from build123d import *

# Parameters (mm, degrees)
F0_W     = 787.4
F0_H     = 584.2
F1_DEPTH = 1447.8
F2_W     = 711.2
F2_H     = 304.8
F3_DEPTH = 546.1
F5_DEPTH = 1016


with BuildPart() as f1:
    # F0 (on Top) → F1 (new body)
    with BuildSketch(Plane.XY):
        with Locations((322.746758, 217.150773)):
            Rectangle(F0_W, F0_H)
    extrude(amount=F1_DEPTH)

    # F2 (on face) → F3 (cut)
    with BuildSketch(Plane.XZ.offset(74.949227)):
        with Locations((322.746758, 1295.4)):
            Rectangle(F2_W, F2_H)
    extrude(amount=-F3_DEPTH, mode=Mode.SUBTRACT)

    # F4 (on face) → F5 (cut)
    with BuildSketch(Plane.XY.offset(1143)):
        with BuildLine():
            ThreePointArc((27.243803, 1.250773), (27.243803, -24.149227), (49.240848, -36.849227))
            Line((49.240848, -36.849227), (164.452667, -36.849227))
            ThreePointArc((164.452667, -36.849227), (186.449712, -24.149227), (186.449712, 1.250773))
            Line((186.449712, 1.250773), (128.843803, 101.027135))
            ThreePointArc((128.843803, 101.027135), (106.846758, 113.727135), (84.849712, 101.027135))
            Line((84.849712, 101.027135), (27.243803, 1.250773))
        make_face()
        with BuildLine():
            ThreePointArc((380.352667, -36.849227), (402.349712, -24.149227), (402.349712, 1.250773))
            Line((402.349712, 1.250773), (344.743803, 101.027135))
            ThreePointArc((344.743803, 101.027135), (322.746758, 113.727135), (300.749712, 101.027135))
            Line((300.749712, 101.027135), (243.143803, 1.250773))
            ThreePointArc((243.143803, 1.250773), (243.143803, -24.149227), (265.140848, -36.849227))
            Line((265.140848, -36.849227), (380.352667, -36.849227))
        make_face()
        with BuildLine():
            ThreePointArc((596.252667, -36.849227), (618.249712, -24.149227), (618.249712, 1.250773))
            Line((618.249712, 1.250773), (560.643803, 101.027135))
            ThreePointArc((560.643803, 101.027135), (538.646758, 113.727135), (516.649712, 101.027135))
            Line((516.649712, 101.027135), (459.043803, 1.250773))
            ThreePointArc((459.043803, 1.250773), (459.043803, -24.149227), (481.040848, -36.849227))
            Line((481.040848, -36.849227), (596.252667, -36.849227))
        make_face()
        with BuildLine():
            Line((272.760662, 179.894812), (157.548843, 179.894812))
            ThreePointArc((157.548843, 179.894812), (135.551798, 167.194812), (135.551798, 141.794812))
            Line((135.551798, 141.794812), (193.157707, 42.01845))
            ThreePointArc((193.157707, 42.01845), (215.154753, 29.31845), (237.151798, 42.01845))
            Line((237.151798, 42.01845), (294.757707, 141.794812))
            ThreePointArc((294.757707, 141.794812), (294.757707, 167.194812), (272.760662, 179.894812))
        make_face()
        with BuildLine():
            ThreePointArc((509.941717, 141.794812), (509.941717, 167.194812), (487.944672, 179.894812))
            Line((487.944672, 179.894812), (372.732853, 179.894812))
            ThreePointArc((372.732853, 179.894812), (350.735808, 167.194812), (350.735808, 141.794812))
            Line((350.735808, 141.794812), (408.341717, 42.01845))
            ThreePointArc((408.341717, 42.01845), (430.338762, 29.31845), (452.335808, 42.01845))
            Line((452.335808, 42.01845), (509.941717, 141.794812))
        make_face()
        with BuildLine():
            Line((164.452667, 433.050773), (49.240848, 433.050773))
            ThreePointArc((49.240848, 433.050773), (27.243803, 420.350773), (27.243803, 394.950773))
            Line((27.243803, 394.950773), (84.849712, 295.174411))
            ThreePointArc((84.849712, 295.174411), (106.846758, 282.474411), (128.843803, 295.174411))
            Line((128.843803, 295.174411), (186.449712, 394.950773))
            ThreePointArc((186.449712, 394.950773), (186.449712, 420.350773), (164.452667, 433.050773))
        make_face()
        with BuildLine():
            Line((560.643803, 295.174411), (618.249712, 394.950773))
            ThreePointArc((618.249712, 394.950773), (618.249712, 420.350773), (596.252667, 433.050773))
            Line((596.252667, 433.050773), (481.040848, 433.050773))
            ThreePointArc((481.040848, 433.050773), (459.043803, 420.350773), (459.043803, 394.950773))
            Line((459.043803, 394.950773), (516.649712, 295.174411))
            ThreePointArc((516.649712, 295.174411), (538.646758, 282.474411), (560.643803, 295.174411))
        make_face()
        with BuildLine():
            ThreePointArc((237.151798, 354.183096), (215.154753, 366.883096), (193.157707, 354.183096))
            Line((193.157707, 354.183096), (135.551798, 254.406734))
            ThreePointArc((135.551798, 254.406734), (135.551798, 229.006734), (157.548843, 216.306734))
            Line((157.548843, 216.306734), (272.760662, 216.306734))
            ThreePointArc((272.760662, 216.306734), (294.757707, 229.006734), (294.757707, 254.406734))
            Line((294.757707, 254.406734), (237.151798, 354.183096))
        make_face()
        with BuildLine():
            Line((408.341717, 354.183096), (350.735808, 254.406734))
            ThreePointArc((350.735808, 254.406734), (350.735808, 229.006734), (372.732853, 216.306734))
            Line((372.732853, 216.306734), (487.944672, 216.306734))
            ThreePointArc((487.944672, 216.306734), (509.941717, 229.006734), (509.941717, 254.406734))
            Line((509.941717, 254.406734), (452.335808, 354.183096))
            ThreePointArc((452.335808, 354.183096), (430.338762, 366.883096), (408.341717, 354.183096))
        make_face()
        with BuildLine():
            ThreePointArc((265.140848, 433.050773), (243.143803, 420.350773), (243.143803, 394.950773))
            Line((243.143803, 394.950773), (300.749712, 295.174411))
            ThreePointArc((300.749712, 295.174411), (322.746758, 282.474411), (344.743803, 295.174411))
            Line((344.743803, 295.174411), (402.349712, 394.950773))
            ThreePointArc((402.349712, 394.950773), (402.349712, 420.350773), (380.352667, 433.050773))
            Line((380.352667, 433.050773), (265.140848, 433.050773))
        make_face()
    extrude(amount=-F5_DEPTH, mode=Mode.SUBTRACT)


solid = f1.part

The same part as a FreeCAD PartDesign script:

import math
import FreeCAD as App
import Part
import Sketcher
Q = App.Units.Quantity


def add_polygon(sketch, points):
    """Adds a closed chain of lines whose ends are joined by coincident constraints."""
    first, n = sketch.GeometryCount, len(points)
    for a, b in zip(points, points[1:] + points[:1]):
        sketch.addGeometry(Part.LineSegment(App.Vector(*a, 0), App.Vector(*b, 0)), False)
    for i in range(n):
        sketch.addConstraint(Sketcher.Constraint("Coincident", first + i, 2, first + (i + 1) % n, 1))

doc = App.newDocument("Part")
params = doc.addObject("Spreadsheet::Sheet", "Params")
for row, (alias, value) in enumerate([
    ("sketch1_width", "31 in"),
    ("sketch1_height", "23 in"),
    ("pad1_length", "57 in"),
    ("sketch2_width", "28 in"),
    ("sketch2_height", "12 in"),
    ("pocket1_length", "21.5 in"),
    ("sketch3_radius", "1 in"),
    ("pocket2_length", "40 in"),
], start=1):
    params.set(f"A{row}", alias)
    params.set(f"B{row}", "=" + value)
    params.setAlias(f"B{row}", alias)

body = doc.addObject("PartDesign::Body", "Body")

# Sketch on XY plane
sketch1 = body.newObject("Sketcher::SketchObject", "Sketch")
sketch1.AttachmentSupport = (doc.getObject("XY_Plane"), [""])
sketch1.MapMode = "FlatFace"
add_polygon(sketch1, [(-71, 509), (-71, -75), (716, -75), (716, 509)])  # lines 0-3
sketch1.addConstraint([
    Sketcher.Constraint("Vertical", 0),
    Sketcher.Constraint("Horizontal", 1),
    Sketcher.Constraint("Vertical", 2),
    Sketcher.Constraint("Horizontal", 3),
    Sketcher.Constraint("DistanceX", 1, 1, 1, 2, Q("31 in")),
    Sketcher.Constraint("DistanceY", 0, 2, 0, 1, Q("23 in")),
    Sketcher.Constraint("DistanceX", -1, 1, 1, 2, 716.446758),
    Sketcher.Constraint("DistanceY", 0, 2, -1, 1, 74.949227),
])
sketch1.setExpression("Constraints[8]", "Params.sketch1_width")
sketch1.setExpression("Constraints[9]", "Params.sketch1_height")
pad1 = body.newObject("PartDesign::Pad", "Pad")
pad1.Profile = sketch1
pad1.setExpression("Length", "Params.pad1_length")

# Sketch on XZ plane
sketch2 = body.newObject("Sketcher::SketchObject", "Sketch001")
sketch2.AttachmentSupport = (doc.getObject("XZ_Plane"), [""])
sketch2.MapMode = "FlatFace"
sketch2.AttachmentOffset = App.Placement(App.Vector(0, 0, 74.949227), App.Rotation())
add_polygon(sketch2, [(-33, 1448), (-33, 1143), (678, 1143), (678, 1448)])  # lines 0-3
sketch2.addConstraint([
    Sketcher.Constraint("Vertical", 0),
    Sketcher.Constraint("Horizontal", 1),
    Sketcher.Constraint("Vertical", 2),
    Sketcher.Constraint("Horizontal", 3),
    Sketcher.Constraint("DistanceX", 1, 1, 1, 2, Q("28 in")),
    Sketcher.Constraint("DistanceY", 0, 2, 0, 1, Q("12 in")),
    Sketcher.Constraint("DistanceY", -1, 1, 0, 2, Q("45 in")),
    Sketcher.Constraint("DistanceX", -1, 1, 1, 2, 678.346758),
])
sketch2.setExpression("Constraints[8]", "Params.sketch2_width")
sketch2.setExpression("Constraints[9]", "Params.sketch2_height")
pocket1 = body.newObject("PartDesign::Pocket", "Pocket")
pocket1.Profile = sketch2
pocket1.setExpression("Length", "Params.pocket1_length")

# Sketch on XY plane
sketch3 = body.newObject("Sketcher::SketchObject", "Sketch002")
sketch3.AttachmentSupport = (doc.getObject("XY_Plane"), [""])
sketch3.MapMode = "FlatFace"
sketch3.AttachmentOffset = App.Placement(App.Vector(0, 0, 45 * 25.4), App.Rotation())
sketch3.addGeometry([
    Part.ArcOfCircle(Part.Circle(App.Vector(49, -11, 0), App.Vector(0, 0, 1), 25), math.radians(150), math.radians(270)),  # 0
    Part.LineSegment(App.Vector(49, -37, 0), App.Vector(164, -37, 0)),  # 1
    Part.ArcOfCircle(Part.Circle(App.Vector(164, -11, 0), App.Vector(0, 0, 1), 25), math.radians(-90), math.radians(30)),  # 2
    Part.LineSegment(App.Vector(186, 1, 0), App.Vector(129, 101, 0)),  # 3
    Part.ArcOfCircle(Part.Circle(App.Vector(107, 88, 0), App.Vector(0, 0, 1), 25), math.radians(30), math.radians(150)),  # 4
    Part.LineSegment(App.Vector(85, 101, 0), App.Vector(27, 1, 0)),  # 5
    Part.ArcOfCircle(Part.Circle(App.Vector(380, -11, 0), App.Vector(0, 0, 1), 25), math.radians(-90), math.radians(30)),  # 6
    Part.LineSegment(App.Vector(402, 1, 0), App.Vector(345, 101, 0)),  # 7
    Part.ArcOfCircle(Part.Circle(App.Vector(323, 88, 0), App.Vector(0, 0, 1), 25), math.radians(30), math.radians(150)),  # 8
    Part.LineSegment(App.Vector(301, 101, 0), App.Vector(243, 1, 0)),  # 9
    Part.ArcOfCircle(Part.Circle(App.Vector(265, -11, 0), App.Vector(0, 0, 1), 25), math.radians(150), math.radians(270)),  # 10
    Part.LineSegment(App.Vector(265, -37, 0), App.Vector(380, -37, 0)),  # 11
    Part.ArcOfCircle(Part.Circle(App.Vector(596, -11, 0), App.Vector(0, 0, 1), 25), math.radians(-90), math.radians(30)),  # 12
    Part.LineSegment(App.Vector(618, 1, 0), App.Vector(561, 101, 0)),  # 13
    Part.ArcOfCircle(Part.Circle(App.Vector(539, 88, 0), App.Vector(0, 0, 1), 25), math.radians(30), math.radians(150)),  # 14
    Part.LineSegment(App.Vector(517, 101, 0), App.Vector(459, 1, 0)),  # 15
    Part.ArcOfCircle(Part.Circle(App.Vector(481, -11, 0), App.Vector(0, 0, 1), 25), math.radians(150), math.radians(270)),  # 16
    Part.LineSegment(App.Vector(481, -37, 0), App.Vector(596, -37, 0)),  # 17
    Part.LineSegment(App.Vector(273, 180, 0), App.Vector(158, 180, 0)),  # 18
    Part.ArcOfCircle(Part.Circle(App.Vector(158, 154, 0), App.Vector(0, 0, 1), 25), math.radians(90), math.radians(210)),  # 19
    Part.LineSegment(App.Vector(136, 142, 0), App.Vector(193, 42, 0)),  # 20
    Part.ArcOfCircle(Part.Circle(App.Vector(215, 55, 0), App.Vector(0, 0, 1), 25), math.radians(-150), math.radians(-30)),  # 21
    Part.LineSegment(App.Vector(237, 42, 0), App.Vector(295, 142, 0)),  # 22
    Part.ArcOfCircle(Part.Circle(App.Vector(273, 154, 0), App.Vector(0, 0, 1), 25), math.radians(-30), math.radians(90)),  # 23
    Part.ArcOfCircle(Part.Circle(App.Vector(488, 154, 0), App.Vector(0, 0, 1), 25), math.radians(-30), math.radians(90)),  # 24
    Part.LineSegment(App.Vector(488, 180, 0), App.Vector(373, 180, 0)),  # 25
    Part.ArcOfCircle(Part.Circle(App.Vector(373, 154, 0), App.Vector(0, 0, 1), 25), math.radians(90), math.radians(210)),  # 26
    Part.LineSegment(App.Vector(351, 142, 0), App.Vector(408, 42, 0)),  # 27
    Part.ArcOfCircle(Part.Circle(App.Vector(430, 55, 0), App.Vector(0, 0, 1), 25), math.radians(-150), math.radians(-30)),  # 28
    Part.LineSegment(App.Vector(452, 42, 0), App.Vector(510, 142, 0)),  # 29
    Part.LineSegment(App.Vector(164, 433, 0), App.Vector(49, 433, 0)),  # 30
    Part.ArcOfCircle(Part.Circle(App.Vector(49, 408, 0), App.Vector(0, 0, 1), 25), math.radians(90), math.radians(210)),  # 31
    Part.LineSegment(App.Vector(27, 395, 0), App.Vector(85, 295, 0)),  # 32
    Part.ArcOfCircle(Part.Circle(App.Vector(107, 308, 0), App.Vector(0, 0, 1), 25), math.radians(-150), math.radians(-30)),  # 33
    Part.LineSegment(App.Vector(129, 295, 0), App.Vector(186, 395, 0)),  # 34
    Part.ArcOfCircle(Part.Circle(App.Vector(164, 408, 0), App.Vector(0, 0, 1), 25), math.radians(-30), math.radians(90)),  # 35
    Part.LineSegment(App.Vector(561, 295, 0), App.Vector(618, 395, 0)),  # 36
    Part.ArcOfCircle(Part.Circle(App.Vector(596, 408, 0), App.Vector(0, 0, 1), 25), math.radians(-30), math.radians(90)),  # 37
    Part.LineSegment(App.Vector(596, 433, 0), App.Vector(481, 433, 0)),  # 38
    Part.ArcOfCircle(Part.Circle(App.Vector(481, 408, 0), App.Vector(0, 0, 1), 25), math.radians(90), math.radians(210)),  # 39
    Part.LineSegment(App.Vector(459, 395, 0), App.Vector(517, 295, 0)),  # 40
    Part.ArcOfCircle(Part.Circle(App.Vector(539, 308, 0), App.Vector(0, 0, 1), 25), math.radians(-150), math.radians(-30)),  # 41
    Part.ArcOfCircle(Part.Circle(App.Vector(215, 341, 0), App.Vector(0, 0, 1), 25), math.radians(30), math.radians(150)),  # 42
    Part.LineSegment(App.Vector(193, 354, 0), App.Vector(136, 254, 0)),  # 43
    Part.ArcOfCircle(Part.Circle(App.Vector(158, 242, 0), App.Vector(0, 0, 1), 25), math.radians(150), math.radians(270)),  # 44
    Part.LineSegment(App.Vector(158, 216, 0), App.Vector(273, 216, 0)),  # 45
    Part.ArcOfCircle(Part.Circle(App.Vector(273, 242, 0), App.Vector(0, 0, 1), 25), math.radians(-90), math.radians(30)),  # 46
    Part.LineSegment(App.Vector(295, 254, 0), App.Vector(237, 354, 0)),  # 47
    Part.LineSegment(App.Vector(408, 354, 0), App.Vector(351, 254, 0)),  # 48
    Part.ArcOfCircle(Part.Circle(App.Vector(373, 242, 0), App.Vector(0, 0, 1), 25), math.radians(150), math.radians(270)),  # 49
    Part.LineSegment(App.Vector(373, 216, 0), App.Vector(488, 216, 0)),  # 50
    Part.ArcOfCircle(Part.Circle(App.Vector(488, 242, 0), App.Vector(0, 0, 1), 25), math.radians(-90), math.radians(30)),  # 51
    Part.LineSegment(App.Vector(510, 254, 0), App.Vector(452, 354, 0)),  # 52
    Part.ArcOfCircle(Part.Circle(App.Vector(430, 341, 0), App.Vector(0, 0, 1), 25), math.radians(30), math.radians(150)),  # 53
    Part.ArcOfCircle(Part.Circle(App.Vector(265, 408, 0), App.Vector(0, 0, 1), 25), math.radians(90), math.radians(210)),  # 54
    Part.LineSegment(App.Vector(243, 395, 0), App.Vector(301, 295, 0)),  # 55
    Part.ArcOfCircle(Part.Circle(App.Vector(323, 308, 0), App.Vector(0, 0, 1), 25), math.radians(-150), math.radians(-30)),  # 56
    Part.LineSegment(App.Vector(345, 295, 0), App.Vector(402, 395, 0)),  # 57
    Part.ArcOfCircle(Part.Circle(App.Vector(380, 408, 0), App.Vector(0, 0, 1), 25), math.radians(-30), math.radians(90)),  # 58
    Part.LineSegment(App.Vector(380, 433, 0), App.Vector(265, 433, 0)),  # 59
], False)
sketch3.addConstraint([
    Sketcher.Constraint("Tangent", 0, 2, 1, 1),
    Sketcher.Constraint("Tangent", 1, 2, 2, 1),
    Sketcher.Constraint("Tangent", 2, 2, 3, 1),
    Sketcher.Constraint("Tangent", 3, 2, 4, 1),
    Sketcher.Constraint("Tangent", 4, 2, 5, 1),
    Sketcher.Constraint("Tangent", 5, 2, 0, 1),
    Sketcher.Constraint("Tangent", 6, 2, 7, 1),
    Sketcher.Constraint("Tangent", 7, 2, 8, 1),
    Sketcher.Constraint("Tangent", 8, 2, 9, 1),
    Sketcher.Constraint("Tangent", 9, 2, 10, 1),
    Sketcher.Constraint("Tangent", 10, 2, 11, 1),
    Sketcher.Constraint("Tangent", 11, 2, 6, 1),
    Sketcher.Constraint("Tangent", 12, 2, 13, 1),
    Sketcher.Constraint("Tangent", 13, 2, 14, 1),
    Sketcher.Constraint("Tangent", 14, 2, 15, 1),
    Sketcher.Constraint("Tangent", 15, 2, 16, 1),
    Sketcher.Constraint("Tangent", 16, 2, 17, 1),
    Sketcher.Constraint("Tangent", 17, 2, 12, 1),
    Sketcher.Constraint("Tangent", 18, 2, 19, 1),
    Sketcher.Constraint("Tangent", 19, 2, 20, 1),
    Sketcher.Constraint("Tangent", 20, 2, 21, 1),
    Sketcher.Constraint("Tangent", 21, 2, 22, 1),
    Sketcher.Constraint("Tangent", 22, 2, 23, 1),
    Sketcher.Constraint("Tangent", 23, 2, 18, 1),
    Sketcher.Constraint("Tangent", 24, 2, 25, 1),
    Sketcher.Constraint("Tangent", 25, 2, 26, 1),
    Sketcher.Constraint("Tangent", 26, 2, 27, 1),
    Sketcher.Constraint("Tangent", 27, 2, 28, 1),
    Sketcher.Constraint("Tangent", 28, 2, 29, 1),
    Sketcher.Constraint("Tangent", 29, 2, 24, 1),
    Sketcher.Constraint("Tangent", 30, 2, 31, 1),
    Sketcher.Constraint("Tangent", 31, 2, 32, 1),
    Sketcher.Constraint("Tangent", 32, 2, 33, 1),
    Sketcher.Constraint("Tangent", 33, 2, 34, 1),
    Sketcher.Constraint("Tangent", 34, 2, 35, 1),
    Sketcher.Constraint("Tangent", 35, 2, 30, 1),
    Sketcher.Constraint("Tangent", 36, 2, 37, 1),
    Sketcher.Constraint("Tangent", 37, 2, 38, 1),
    Sketcher.Constraint("Tangent", 38, 2, 39, 1),
    Sketcher.Constraint("Tangent", 39, 2, 40, 1),
    Sketcher.Constraint("Tangent", 40, 2, 41, 1),
    Sketcher.Constraint("Tangent", 41, 2, 36, 1),
    Sketcher.Constraint("Tangent", 42, 2, 43, 1),
    Sketcher.Constraint("Tangent", 43, 2, 44, 1),
    Sketcher.Constraint("Tangent", 44, 2, 45, 1),
    Sketcher.Constraint("Tangent", 45, 2, 46, 1),
    Sketcher.Constraint("Tangent", 46, 2, 47, 1),
    Sketcher.Constraint("Tangent", 47, 2, 42, 1),
    Sketcher.Constraint("Tangent", 48, 2, 49, 1),
    Sketcher.Constraint("Tangent", 49, 2, 50, 1),
    Sketcher.Constraint("Tangent", 50, 2, 51, 1),
    Sketcher.Constraint("Tangent", 51, 2, 52, 1),
    Sketcher.Constraint("Tangent", 52, 2, 53, 1),
    Sketcher.Constraint("Tangent", 53, 2, 48, 1),
    Sketcher.Constraint("Tangent", 54, 2, 55, 1),
    Sketcher.Constraint("Tangent", 55, 2, 56, 1),
    Sketcher.Constraint("Tangent", 56, 2, 57, 1),
    Sketcher.Constraint("Tangent", 57, 2, 58, 1),
    Sketcher.Constraint("Tangent", 58, 2, 59, 1),
    Sketcher.Constraint("Tangent", 59, 2, 54, 1),
    Sketcher.Constraint("Horizontal", 1),
    Sketcher.Constraint("Horizontal", 11),
    Sketcher.Constraint("Horizontal", 17),
    Sketcher.Constraint("Horizontal", 18),
    Sketcher.Constraint("Horizontal", 25),
    Sketcher.Constraint("Horizontal", 30),
    Sketcher.Constraint("Horizontal", 38),
    Sketcher.Constraint("Horizontal", 45),
    Sketcher.Constraint("Horizontal", 50),
    Sketcher.Constraint("Horizontal", 59),
    Sketcher.Constraint("Equal", 0, 2),
    Sketcher.Constraint("Equal", 2, 4),
    Sketcher.Constraint("Equal", 4, 6),
    Sketcher.Constraint("Equal", 6, 8),
    Sketcher.Constraint("Equal", 8, 10),
    Sketcher.Constraint("Equal", 10, 12),
    Sketcher.Constraint("Equal", 12, 14),
    Sketcher.Constraint("Equal", 14, 16),
    Sketcher.Constraint("Equal", 16, 19),
    Sketcher.Constraint("Equal", 19, 21),
    Sketcher.Constraint("Equal", 21, 23),
    Sketcher.Constraint("Equal", 23, 24),
    Sketcher.Constraint("Equal", 24, 26),
    Sketcher.Constraint("Equal", 26, 28),
    Sketcher.Constraint("Equal", 28, 31),
    Sketcher.Constraint("Equal", 31, 33),
    Sketcher.Constraint("Equal", 33, 35),
    Sketcher.Constraint("Equal", 35, 37),
    Sketcher.Constraint("Equal", 37, 39),
    Sketcher.Constraint("Equal", 39, 41),
    Sketcher.Constraint("Equal", 41, 42),
    Sketcher.Constraint("Equal", 42, 44),
    Sketcher.Constraint("Equal", 44, 46),
    Sketcher.Constraint("Equal", 46, 49),
    Sketcher.Constraint("Equal", 49, 51),
    Sketcher.Constraint("Equal", 51, 53),
    Sketcher.Constraint("Equal", 53, 54),
    Sketcher.Constraint("Equal", 54, 56),
    Sketcher.Constraint("Equal", 56, 58),
    Sketcher.Constraint("Parallel", 3, 7),
    Sketcher.Constraint("Parallel", 5, 9),
    Sketcher.Constraint("Parallel", 7, 13),
    Sketcher.Constraint("Parallel", 9, 15),
    Sketcher.Constraint("Parallel", 13, 20),
    Sketcher.Constraint("Parallel", 15, 22),
    Sketcher.Constraint("Parallel", 20, 27),
    Sketcher.Constraint("Parallel", 22, 29),
    Sketcher.Constraint("Parallel", 27, 32),
    Sketcher.Constraint("Parallel", 29, 34),
    Sketcher.Constraint("Parallel", 34, 36),
    Sketcher.Constraint("Parallel", 32, 40),
    Sketcher.Constraint("Parallel", 36, 43),
    Sketcher.Constraint("Parallel", 40, 47),
    Sketcher.Constraint("Parallel", 43, 48),
    Sketcher.Constraint("Parallel", 47, 52),
    Sketcher.Constraint("Parallel", 52, 55),
    Sketcher.Constraint("Parallel", 48, 57),
    Sketcher.Constraint("Horizontal", 2, 3, 6, 3),
    Sketcher.Constraint("Horizontal", 4, 3, 8, 3),
    Sketcher.Constraint("Horizontal", 10, 3, 12, 3),
    Sketcher.Constraint("Horizontal", 8, 3, 14, 3),
    Sketcher.Constraint("Horizontal", 23, 3, 24, 3),
    Sketcher.Constraint("Horizontal", 21, 3, 28, 3),
    Sketcher.Constraint("Horizontal", 35, 3, 37, 3),
    Sketcher.Constraint("Horizontal", 33, 3, 41, 3),
    Sketcher.Constraint("Horizontal", 46, 3, 49, 3),
    Sketcher.Constraint("Horizontal", 42, 3, 53, 3),
    Sketcher.Constraint("Horizontal", 39, 3, 54, 3),
    Sketcher.Constraint("Horizontal", 41, 3, 56, 3),
    Sketcher.Constraint("Horizontal", 3, 2, 4, 2),
    Sketcher.Constraint("Vertical", 0, 3, 31, 3),
    Sketcher.Constraint("Vertical", 4, 3, 33, 3),
    Sketcher.Constraint("Vertical", 12, 3, 37, 3),
    Sketcher.Constraint("Vertical", 21, 3, 42, 3),
    Sketcher.Constraint("Vertical", 19, 3, 44, 3),
    Sketcher.Constraint("Vertical", 26, 3, 49, 3),
    Sketcher.Constraint("Vertical", 10, 3, 54, 3),
    Sketcher.Constraint("Equal", 17, 18),
    Sketcher.Constraint("Radius", 0, Q("1 in")),
    Sketcher.Constraint("Angle", 3, Q("120 deg")),
    Sketcher.Constraint("DistanceX", 1, 1, 1, 2, 115.211819),
    Sketcher.Constraint("DistanceX", -1, 1, 43, 2, 135.551798),
    Sketcher.Constraint("DistanceX", -1, 1, 0, 3, 49.240848),
    Sketcher.Constraint("DistanceX", -1, 1, 10, 3, 265.140848),
    Sketcher.Constraint("DistanceX", -1, 1, 16, 3, 481.040848),
    Sketcher.Constraint("DistanceY", -1, 1, 19, 3, 154.494812),
    Sketcher.Constraint("DistanceX", -1, 1, 24, 3, 487.944672),
    Sketcher.Constraint("DistanceY", -1, 1, 33, 3, 307.874411),
    Sketcher.Constraint("DistanceY", 0, 3, -1, 1, 11.449227),
    Sketcher.Constraint("DistanceY", -1, 1, 42, 3, 341.483096),
])
sketch3.setExpression("Constraints[138]", "Params.sketch3_radius")
pocket2 = body.newObject("PartDesign::Pocket", "Pocket001")
pocket2.Profile = sketch3
pocket2.setExpression("Length", "Params.pocket2_length")

doc.recompute()
